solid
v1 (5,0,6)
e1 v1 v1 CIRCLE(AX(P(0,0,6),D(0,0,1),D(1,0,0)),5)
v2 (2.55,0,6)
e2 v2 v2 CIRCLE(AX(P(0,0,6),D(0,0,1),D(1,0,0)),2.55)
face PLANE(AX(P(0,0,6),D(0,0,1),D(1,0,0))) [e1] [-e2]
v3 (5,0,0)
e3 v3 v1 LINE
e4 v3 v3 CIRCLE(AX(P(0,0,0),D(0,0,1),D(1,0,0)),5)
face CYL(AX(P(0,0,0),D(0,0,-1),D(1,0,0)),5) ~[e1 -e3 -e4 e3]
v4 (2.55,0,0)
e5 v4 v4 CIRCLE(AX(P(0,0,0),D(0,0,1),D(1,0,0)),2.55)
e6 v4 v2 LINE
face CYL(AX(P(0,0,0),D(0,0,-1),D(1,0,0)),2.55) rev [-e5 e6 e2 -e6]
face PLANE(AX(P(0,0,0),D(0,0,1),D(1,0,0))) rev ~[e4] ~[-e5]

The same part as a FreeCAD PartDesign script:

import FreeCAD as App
import Part
import Sketcher
from FreeCAD import Vector

doc = App.newDocument("Part")
body = doc.addObject("PartDesign::Body", "Body")

sketch1 = body.newObject("Sketcher::SketchObject", "Sketch")
sketch1.AttachmentSupport = (doc.getObject("XY_Plane"), [""])
sketch1.MapMode = "FlatFace"
sketch1.addGeometry([
    Part.Circle(Vector(0, 0, 0), Vector(0, 0, 1), 5),
    Part.Circle(Vector(0, 0, 0), Vector(0, 0, 1), 2.5),
], False)
sketch1.addConstraint([
    Sketcher.Constraint("Coincident", 0, 3, -1, 1),
    Sketcher.Constraint("Coincident", 1, 3, -1, 1),
    Sketcher.Constraint("Diameter", 0, 10.0),
    Sketcher.Constraint("Diameter", 1, 5.1),
])
pad1 = body.newObject("PartDesign::Pad", "Pad")
pad1.Profile = sketch1
pad1.Length = 6

doc.recompute()
